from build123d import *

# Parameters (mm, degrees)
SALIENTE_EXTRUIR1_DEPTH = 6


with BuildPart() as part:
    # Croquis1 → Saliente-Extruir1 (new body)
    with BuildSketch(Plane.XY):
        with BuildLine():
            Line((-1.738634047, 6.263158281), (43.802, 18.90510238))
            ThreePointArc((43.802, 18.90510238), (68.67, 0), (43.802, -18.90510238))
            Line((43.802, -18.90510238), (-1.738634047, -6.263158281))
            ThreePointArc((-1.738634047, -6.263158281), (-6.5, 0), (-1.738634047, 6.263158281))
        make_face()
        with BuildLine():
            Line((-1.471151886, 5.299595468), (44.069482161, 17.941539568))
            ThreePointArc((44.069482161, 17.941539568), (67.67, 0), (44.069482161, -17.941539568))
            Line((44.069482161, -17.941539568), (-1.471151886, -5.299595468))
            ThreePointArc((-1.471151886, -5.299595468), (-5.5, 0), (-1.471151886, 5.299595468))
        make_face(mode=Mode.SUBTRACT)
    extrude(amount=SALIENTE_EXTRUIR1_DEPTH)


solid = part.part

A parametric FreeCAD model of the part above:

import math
import FreeCAD as App
import Part
import Sketcher

V = App.Vector
Q = App.Units.Quantity

doc = App.newDocument("Part")
body = doc.addObject("PartDesign::Body", "Body")

# Sketch on XY plane
sketch1 = body.newObject("Sketcher::SketchObject", "Sketch")
sketch1.AttachmentSupport = (doc.getObject("XY_Plane"), [""])
sketch1.MapMode = "FlatFace"
sketch1.addGeometry([
    Part.LineSegment(V(43.802, 18.905102, 0), V(-1.738634, 6.263158, 0)),  # 0
    Part.ArcOfCircle(Part.Circle(V(0, 0, 0), V(0, 0, 1), 6.5), math.radians(105.514496), math.radians(254.485504)),  # 1
    Part.LineSegment(V(-1.738634, -6.263158, 0), V(43.802, -18.905102, 0)),  # 2
    Part.ArcOfCircle(Part.Circle(V(49.05, 0, 0), V(0, 0, 1), 19.62), math.radians(-105.514496), math.radians(105.514496)),  # 3
    Part.LineSegment(V(-1.471152, 5.299595, 0), V(44.069482, 17.94154, 0)),  # 4
    Part.ArcOfCircle(Part.Circle(V(49.05, 0, 0), V(0, 0, 1), 18.62), math.radians(-105.514496), math.radians(105.514496)),  # 5
    Part.LineSegment(V(44.069482, -17.94154, 0), V(-1.471152, -5.299595, 0)),  # 6
    Part.ArcOfCircle(Part.Circle(V(0, 0, 0), V(0, 0, 1), 5.5), math.radians(105.514496), math.radians(254.485504)),  # 7
], False)
sketch1.addConstraint([
    Sketcher.Constraint("Tangent", 0, 2, 1, 1),
    Sketcher.Constraint("Tangent", 1, 2, 2, 1),
    Sketcher.Constraint("Tangent", 2, 2, 3, 1),
    Sketcher.Constraint("Tangent", 3, 2, 0, 1),
    Sketcher.Constraint("Tangent", 4, 2, 5, 2),
    Sketcher.Constraint("Tangent", 5, 1, 6, 1),
    Sketcher.Constraint("Tangent", 6, 2, 7, 2),
    Sketcher.Constraint("Tangent", 7, 1, 4, 1),
    Sketcher.Constraint("Coincident", 1, 3, -1, 1),
    Sketcher.Constraint("Coincident", 7, 3, -1, 1),
    Sketcher.Constraint("Coincident", 5, 3, 3, 3),
    Sketcher.Constraint("PointOnObject", 3, 3, -1),
    Sketcher.Constraint("Parallel", 0, 4),
    Sketcher.Constraint("Radius", 1, Q("6.5 mm")),
    Sketcher.Constraint("Radius", 7, Q("5.5 mm")),
    Sketcher.Constraint("Radius", 3, Q("19.62 mm")),
    Sketcher.Constraint("DistanceX", -1, 1, 3, 3, Q("49.05 mm")),
])
pad1 = body.newObject("PartDesign::Pad", "Pad")
pad1.Profile = sketch1
pad1.Length = 6

doc.recompute()
